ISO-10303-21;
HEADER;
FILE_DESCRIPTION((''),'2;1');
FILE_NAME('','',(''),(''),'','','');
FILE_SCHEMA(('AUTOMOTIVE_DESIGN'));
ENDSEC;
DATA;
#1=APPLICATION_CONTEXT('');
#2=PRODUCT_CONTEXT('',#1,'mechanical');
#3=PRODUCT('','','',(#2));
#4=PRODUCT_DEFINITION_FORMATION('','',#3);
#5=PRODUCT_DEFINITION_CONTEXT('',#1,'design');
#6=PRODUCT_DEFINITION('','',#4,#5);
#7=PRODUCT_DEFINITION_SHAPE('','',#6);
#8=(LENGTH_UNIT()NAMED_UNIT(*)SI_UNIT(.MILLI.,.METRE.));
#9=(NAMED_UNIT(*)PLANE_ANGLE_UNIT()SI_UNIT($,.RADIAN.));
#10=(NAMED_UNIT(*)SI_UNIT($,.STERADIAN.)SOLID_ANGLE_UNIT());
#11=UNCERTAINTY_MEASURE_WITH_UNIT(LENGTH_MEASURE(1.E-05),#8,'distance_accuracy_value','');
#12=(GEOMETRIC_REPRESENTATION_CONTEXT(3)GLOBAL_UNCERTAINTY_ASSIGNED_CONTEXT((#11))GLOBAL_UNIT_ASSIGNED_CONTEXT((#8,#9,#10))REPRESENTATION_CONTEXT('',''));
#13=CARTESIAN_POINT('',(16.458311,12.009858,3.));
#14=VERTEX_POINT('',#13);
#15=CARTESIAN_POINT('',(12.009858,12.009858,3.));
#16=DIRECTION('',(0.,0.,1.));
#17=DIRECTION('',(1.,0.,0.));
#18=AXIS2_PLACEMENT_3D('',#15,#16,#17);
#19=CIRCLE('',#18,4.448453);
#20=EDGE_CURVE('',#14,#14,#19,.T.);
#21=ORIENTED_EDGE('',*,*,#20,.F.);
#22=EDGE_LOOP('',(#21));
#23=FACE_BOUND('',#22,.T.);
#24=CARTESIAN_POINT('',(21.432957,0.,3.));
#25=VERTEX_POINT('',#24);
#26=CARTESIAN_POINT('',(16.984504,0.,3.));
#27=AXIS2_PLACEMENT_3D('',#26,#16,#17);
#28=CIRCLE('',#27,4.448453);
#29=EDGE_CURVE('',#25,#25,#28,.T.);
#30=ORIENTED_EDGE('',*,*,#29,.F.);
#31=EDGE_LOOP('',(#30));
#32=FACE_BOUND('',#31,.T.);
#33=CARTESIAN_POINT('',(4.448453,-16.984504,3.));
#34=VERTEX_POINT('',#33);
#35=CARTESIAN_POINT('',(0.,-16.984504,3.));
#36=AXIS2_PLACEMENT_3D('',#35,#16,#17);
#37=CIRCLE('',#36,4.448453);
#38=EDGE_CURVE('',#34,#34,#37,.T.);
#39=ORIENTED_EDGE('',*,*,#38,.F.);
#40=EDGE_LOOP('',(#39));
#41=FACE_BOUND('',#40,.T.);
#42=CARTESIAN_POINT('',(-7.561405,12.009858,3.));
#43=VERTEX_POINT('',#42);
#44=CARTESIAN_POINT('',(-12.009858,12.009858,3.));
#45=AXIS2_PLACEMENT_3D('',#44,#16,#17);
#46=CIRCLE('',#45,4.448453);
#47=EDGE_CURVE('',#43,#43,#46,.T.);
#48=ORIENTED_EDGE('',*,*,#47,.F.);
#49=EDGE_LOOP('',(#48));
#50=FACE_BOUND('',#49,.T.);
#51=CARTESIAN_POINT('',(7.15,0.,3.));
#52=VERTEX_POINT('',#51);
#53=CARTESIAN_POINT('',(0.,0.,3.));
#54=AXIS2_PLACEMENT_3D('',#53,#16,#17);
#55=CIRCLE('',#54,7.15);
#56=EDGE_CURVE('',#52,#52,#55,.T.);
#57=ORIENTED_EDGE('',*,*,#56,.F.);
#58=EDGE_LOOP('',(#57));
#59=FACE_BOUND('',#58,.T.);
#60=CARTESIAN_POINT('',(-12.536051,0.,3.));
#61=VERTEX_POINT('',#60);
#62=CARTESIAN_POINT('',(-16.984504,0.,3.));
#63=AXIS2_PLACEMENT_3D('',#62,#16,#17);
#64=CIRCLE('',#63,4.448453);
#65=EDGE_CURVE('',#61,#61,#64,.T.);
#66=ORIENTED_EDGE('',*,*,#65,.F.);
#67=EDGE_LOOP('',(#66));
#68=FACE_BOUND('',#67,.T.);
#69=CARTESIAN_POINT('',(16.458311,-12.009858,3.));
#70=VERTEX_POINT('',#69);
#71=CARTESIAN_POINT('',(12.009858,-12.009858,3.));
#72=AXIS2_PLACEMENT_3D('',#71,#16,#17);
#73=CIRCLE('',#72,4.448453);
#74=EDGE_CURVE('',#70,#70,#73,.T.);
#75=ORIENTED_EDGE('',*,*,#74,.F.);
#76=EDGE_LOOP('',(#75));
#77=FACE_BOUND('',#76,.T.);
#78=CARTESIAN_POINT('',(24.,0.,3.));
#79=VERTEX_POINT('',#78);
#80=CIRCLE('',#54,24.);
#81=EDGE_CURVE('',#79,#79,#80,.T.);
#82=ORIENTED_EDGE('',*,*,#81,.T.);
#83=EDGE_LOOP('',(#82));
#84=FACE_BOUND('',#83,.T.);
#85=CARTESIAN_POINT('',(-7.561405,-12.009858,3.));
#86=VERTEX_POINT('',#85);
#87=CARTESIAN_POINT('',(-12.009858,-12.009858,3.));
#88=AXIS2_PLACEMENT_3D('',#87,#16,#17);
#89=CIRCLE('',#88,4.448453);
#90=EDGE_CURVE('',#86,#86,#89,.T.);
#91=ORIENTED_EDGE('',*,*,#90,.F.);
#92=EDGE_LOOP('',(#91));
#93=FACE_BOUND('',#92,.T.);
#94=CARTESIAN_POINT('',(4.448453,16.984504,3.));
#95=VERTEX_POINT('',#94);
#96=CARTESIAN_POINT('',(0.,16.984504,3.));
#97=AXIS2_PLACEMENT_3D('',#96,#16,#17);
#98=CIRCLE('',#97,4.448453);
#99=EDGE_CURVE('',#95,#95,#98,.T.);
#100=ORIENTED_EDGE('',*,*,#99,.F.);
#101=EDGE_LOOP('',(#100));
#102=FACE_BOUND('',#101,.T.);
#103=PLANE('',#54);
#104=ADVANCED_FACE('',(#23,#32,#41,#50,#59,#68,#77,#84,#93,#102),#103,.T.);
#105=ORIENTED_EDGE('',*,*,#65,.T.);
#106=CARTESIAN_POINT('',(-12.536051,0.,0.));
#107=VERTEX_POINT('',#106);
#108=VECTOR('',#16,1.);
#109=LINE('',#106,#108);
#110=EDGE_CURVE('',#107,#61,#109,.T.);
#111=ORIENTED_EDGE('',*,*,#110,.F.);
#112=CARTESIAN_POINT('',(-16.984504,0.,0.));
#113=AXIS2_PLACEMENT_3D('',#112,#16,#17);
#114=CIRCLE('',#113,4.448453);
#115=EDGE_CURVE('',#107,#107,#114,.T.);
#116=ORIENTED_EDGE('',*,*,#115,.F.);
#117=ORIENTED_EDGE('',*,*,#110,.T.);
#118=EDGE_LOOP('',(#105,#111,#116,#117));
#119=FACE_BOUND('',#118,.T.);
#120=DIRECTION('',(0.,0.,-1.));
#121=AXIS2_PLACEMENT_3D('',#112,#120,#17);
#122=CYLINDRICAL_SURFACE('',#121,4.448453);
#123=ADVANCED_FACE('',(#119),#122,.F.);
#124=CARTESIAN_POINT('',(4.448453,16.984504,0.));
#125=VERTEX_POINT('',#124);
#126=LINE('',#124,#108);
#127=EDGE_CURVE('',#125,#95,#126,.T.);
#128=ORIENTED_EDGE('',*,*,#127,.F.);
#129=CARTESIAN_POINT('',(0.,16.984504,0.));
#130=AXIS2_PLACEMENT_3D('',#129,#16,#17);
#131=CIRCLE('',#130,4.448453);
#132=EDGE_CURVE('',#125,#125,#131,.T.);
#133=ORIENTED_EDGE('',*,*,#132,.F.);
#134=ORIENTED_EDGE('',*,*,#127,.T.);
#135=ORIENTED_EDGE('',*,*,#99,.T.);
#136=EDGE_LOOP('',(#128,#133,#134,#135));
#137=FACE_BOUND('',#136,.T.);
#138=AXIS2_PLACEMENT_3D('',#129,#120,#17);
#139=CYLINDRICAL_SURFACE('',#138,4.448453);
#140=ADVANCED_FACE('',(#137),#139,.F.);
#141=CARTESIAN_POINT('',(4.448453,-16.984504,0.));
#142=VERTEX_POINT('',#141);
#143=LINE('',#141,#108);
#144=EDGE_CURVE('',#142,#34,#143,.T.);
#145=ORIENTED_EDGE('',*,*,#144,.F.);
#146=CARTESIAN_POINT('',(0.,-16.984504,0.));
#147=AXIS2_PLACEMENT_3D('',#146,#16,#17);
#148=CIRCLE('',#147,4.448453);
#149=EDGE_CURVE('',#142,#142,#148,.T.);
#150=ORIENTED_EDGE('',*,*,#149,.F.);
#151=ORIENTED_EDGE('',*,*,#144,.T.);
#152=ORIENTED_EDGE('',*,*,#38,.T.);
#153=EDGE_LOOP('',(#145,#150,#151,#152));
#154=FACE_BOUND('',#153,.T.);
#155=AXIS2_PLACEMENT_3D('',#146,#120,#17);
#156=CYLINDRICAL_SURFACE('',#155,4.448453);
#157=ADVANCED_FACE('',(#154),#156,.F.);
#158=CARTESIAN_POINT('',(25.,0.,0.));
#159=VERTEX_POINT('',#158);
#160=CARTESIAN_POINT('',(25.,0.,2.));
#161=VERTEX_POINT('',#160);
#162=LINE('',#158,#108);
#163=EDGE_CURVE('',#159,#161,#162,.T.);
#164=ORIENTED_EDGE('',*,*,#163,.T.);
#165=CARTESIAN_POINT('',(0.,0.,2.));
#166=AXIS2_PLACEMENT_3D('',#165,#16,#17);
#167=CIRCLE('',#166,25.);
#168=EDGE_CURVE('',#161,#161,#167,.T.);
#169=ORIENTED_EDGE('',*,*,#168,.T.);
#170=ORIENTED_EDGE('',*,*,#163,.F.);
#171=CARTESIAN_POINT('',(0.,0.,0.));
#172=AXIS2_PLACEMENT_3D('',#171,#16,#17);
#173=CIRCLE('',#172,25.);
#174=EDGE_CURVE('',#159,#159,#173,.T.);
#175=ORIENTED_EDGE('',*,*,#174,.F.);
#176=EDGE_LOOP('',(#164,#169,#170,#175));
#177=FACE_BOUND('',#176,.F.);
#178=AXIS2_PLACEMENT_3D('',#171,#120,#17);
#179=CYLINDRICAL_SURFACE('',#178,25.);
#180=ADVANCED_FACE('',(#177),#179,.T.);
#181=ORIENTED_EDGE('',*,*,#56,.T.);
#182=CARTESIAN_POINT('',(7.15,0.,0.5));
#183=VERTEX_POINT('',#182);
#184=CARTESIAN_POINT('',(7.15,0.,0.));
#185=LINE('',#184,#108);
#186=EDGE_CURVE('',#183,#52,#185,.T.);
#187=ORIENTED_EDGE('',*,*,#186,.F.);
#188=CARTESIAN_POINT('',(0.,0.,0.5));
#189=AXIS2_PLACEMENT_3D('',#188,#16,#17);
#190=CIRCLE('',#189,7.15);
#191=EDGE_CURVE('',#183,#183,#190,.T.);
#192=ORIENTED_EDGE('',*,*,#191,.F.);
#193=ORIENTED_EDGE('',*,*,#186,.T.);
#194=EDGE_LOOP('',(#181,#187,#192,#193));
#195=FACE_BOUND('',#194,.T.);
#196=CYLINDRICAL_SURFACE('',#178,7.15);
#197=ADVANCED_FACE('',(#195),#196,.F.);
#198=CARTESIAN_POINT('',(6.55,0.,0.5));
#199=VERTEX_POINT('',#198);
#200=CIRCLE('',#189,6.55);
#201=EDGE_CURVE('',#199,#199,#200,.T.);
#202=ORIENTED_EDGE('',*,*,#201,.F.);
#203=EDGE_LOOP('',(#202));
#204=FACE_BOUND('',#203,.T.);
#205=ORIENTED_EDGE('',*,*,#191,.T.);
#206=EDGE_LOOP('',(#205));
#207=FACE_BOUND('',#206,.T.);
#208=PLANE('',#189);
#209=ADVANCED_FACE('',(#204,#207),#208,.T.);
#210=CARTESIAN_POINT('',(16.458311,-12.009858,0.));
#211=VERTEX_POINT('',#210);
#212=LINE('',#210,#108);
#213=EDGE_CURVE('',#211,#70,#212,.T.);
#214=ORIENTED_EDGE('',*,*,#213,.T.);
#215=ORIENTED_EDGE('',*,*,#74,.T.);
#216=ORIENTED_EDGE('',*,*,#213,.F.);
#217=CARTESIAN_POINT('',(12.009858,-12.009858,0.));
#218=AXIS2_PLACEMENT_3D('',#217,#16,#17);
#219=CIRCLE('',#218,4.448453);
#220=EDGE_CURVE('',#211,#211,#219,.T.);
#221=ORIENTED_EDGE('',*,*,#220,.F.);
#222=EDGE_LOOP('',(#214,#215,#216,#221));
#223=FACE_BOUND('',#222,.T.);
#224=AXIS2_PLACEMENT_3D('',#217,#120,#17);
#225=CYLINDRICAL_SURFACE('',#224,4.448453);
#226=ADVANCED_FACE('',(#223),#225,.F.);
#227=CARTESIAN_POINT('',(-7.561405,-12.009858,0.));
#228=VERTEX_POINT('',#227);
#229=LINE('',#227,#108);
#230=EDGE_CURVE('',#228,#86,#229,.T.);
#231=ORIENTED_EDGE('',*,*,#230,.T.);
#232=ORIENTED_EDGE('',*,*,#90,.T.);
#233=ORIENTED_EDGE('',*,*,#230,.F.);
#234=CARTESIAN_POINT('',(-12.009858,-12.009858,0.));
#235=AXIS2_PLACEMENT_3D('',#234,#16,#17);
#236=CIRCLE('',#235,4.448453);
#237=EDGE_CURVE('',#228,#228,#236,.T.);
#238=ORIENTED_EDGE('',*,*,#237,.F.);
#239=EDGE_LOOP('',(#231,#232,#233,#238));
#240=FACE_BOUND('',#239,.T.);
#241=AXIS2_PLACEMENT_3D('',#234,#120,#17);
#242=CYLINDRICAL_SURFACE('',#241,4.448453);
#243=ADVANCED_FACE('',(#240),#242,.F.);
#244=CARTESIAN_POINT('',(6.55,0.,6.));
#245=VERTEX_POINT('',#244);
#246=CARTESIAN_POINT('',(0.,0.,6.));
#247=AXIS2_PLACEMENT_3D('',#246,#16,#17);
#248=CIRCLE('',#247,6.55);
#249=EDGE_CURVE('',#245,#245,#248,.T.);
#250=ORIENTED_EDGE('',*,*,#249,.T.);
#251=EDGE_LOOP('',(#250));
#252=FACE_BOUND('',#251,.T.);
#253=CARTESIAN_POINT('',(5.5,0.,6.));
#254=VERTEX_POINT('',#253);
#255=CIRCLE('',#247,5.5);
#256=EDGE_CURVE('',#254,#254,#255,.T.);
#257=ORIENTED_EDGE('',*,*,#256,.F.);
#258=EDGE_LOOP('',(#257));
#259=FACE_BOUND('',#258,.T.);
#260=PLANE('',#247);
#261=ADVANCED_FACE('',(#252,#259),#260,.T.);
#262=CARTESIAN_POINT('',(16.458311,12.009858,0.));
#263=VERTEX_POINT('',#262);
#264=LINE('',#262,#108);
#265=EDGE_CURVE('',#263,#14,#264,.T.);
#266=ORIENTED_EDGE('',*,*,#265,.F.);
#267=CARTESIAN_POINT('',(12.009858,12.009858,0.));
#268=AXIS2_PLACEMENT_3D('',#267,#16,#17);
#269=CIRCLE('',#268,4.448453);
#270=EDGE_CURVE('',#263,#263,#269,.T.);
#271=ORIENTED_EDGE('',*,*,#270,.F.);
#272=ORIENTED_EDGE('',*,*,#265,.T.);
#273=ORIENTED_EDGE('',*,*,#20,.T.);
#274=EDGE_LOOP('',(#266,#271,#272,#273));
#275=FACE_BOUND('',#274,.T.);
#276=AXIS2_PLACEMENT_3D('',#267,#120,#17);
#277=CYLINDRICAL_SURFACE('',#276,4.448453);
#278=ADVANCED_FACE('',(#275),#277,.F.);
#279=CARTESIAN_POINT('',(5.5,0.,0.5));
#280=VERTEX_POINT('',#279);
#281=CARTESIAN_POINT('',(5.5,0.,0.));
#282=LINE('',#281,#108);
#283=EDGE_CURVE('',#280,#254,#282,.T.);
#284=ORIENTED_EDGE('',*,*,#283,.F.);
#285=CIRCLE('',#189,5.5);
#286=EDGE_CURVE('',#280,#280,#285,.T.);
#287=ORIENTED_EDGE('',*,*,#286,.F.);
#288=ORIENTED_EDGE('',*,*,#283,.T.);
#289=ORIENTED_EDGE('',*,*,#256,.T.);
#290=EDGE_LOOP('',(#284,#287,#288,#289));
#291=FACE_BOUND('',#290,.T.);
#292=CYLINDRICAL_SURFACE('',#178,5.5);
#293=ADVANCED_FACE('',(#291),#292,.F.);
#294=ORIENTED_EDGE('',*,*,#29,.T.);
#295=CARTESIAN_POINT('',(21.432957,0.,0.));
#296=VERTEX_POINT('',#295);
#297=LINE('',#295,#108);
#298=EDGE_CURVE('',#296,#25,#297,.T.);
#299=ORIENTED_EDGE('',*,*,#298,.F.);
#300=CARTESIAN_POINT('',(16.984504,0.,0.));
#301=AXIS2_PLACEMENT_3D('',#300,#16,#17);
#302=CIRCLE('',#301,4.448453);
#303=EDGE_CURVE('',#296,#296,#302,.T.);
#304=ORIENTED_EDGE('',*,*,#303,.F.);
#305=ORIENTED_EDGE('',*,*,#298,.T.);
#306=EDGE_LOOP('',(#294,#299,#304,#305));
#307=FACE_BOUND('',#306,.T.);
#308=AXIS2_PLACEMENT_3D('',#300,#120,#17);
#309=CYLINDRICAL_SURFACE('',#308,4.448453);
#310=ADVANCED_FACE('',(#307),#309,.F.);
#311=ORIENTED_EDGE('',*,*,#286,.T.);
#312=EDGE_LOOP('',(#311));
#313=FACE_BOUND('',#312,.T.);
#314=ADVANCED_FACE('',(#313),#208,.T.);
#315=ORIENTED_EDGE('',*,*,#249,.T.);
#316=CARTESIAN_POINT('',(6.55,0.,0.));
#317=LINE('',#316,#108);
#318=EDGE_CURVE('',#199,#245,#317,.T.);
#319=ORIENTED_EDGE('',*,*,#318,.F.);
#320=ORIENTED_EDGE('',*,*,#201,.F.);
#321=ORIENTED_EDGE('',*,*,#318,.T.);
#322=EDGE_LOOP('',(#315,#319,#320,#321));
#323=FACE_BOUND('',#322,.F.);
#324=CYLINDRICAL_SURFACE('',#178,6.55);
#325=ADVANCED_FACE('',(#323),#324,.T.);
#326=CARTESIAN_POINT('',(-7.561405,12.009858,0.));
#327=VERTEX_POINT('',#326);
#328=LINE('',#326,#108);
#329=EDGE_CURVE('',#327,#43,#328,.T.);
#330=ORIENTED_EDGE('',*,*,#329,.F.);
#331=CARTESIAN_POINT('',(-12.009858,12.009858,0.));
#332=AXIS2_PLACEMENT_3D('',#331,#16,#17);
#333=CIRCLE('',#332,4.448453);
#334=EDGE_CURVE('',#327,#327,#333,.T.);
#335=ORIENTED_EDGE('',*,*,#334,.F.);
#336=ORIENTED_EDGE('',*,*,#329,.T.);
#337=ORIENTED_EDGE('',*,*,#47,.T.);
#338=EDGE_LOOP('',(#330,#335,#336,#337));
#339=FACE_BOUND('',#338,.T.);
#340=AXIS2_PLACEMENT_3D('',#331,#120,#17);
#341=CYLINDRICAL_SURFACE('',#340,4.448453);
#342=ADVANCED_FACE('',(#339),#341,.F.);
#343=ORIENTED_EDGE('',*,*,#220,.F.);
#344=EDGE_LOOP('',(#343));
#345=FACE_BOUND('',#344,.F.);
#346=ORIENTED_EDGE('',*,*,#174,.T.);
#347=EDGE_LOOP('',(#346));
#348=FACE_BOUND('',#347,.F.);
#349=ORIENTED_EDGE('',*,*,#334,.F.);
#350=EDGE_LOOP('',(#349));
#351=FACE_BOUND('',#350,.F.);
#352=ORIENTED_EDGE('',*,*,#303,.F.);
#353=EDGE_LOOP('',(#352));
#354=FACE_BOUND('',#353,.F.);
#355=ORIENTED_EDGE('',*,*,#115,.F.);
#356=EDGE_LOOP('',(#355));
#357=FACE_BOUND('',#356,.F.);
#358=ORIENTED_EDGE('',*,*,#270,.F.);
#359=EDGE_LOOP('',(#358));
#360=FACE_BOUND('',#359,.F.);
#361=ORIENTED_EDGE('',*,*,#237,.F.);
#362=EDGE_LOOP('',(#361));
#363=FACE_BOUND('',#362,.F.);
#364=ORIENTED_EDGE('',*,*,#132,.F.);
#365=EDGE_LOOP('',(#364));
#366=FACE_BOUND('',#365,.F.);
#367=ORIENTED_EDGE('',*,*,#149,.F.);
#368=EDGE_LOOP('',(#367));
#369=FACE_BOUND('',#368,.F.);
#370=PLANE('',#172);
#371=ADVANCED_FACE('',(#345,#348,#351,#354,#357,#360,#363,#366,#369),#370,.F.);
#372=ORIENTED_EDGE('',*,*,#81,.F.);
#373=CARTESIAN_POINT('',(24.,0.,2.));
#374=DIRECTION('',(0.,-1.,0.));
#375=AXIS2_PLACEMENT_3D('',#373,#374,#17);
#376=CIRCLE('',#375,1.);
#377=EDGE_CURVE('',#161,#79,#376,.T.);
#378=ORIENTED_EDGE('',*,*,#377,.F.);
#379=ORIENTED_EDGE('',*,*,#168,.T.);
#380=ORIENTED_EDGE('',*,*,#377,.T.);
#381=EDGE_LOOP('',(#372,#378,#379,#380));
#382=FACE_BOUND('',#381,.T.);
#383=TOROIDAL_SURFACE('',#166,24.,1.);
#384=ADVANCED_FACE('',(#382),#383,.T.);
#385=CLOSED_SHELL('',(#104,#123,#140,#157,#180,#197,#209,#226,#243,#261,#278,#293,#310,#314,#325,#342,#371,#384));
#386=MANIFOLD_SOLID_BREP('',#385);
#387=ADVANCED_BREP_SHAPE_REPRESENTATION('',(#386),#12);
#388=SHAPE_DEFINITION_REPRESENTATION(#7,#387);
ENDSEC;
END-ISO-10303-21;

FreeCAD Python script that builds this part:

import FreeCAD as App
import Part
import Sketcher
Q = App.Units.Quantity


def edges_at(feature, points):
    """Names of the edges that pass closest to the given points."""
    edges = feature.Shape.Edges
    near = lambda p: min(range(len(edges)), key=lambda i: edges[i].distToShape(Part.Vertex(*p))[0])
    return sorted({f"Edge{near(p) + 1}" for p in points})

doc = App.newDocument("Part")
params = doc.addObject("Spreadsheet::Sheet", "Params")
for row, (alias, value) in enumerate([
    ("sketch1_diameter", "11 mm"),
    ("sketch1_diameter2", "13.1 mm"),
    ("pad1_length", "6 mm"),
    ("sketch2_diameter", "11 mm"),
    ("sketch2_diameter2", "14.3 mm"),
    ("sketch2_diameter3", "13.1 mm"),
    ("pad2_length", "0.5 mm"),
    ("sketch3_diameter", "50 mm"),
    ("sketch3_diameter2", "14.3 mm"),
    ("pad3_length", "3 mm"),
    ("fillet_radius", "1 mm"),
], start=1):
    params.set(f"A{row}", alias)
    params.set(f"B{row}", "=" + value)
    params.setAlias(f"B{row}", alias)

body = doc.addObject("PartDesign::Body", "Body")

# Sketch on XY plane
sketch1 = body.newObject("Sketcher::SketchObject", "Sketch")
sketch1.AttachmentSupport = (doc.getObject("XY_Plane"), [""])
sketch1.MapMode = "FlatFace"
sketch1.addGeometry(Part.Circle(App.Vector(0, 0, 0), App.Vector(0, 0, 1), 6.55), False)
sketch1.addGeometry(Part.Circle(App.Vector(0, 0, 0), App.Vector(0, 0, 1), 5.5), False)
sketch1.addConstraint(Sketcher.Constraint("Coincident", 0, 3, -1, 1))
sketch1.addConstraint(Sketcher.Constraint("Coincident", 1, 3, -1, 1))
sketch1.addConstraint(Sketcher.Constraint("Diameter", 1, Q("11 mm")))
sketch1.addConstraint(Sketcher.Constraint("Diameter", 0, Q("13.1 mm")))
sketch1.setExpression("Constraints[2]", "Params.sketch1_diameter")
sketch1.setExpression("Constraints[3]", "Params.sketch1_diameter2")
pad1 = body.newObject("PartDesign::Pad", "Pad")
pad1.Profile = sketch1
pad1.setExpression("Length", "Params.pad1_length")

# Sketch on XY plane
sketch2 = body.newObject("Sketcher::SketchObject", "Sketch001")
sketch2.AttachmentSupport = (doc.getObject("XY_Plane"), [""])
sketch2.MapMode = "FlatFace"
sketch2.addGeometry(Part.Circle(App.Vector(0, 0, 0), App.Vector(0, 0, 1), 7.15), False)
sketch2.addGeometry(Part.Circle(App.Vector(0, 0, 0), App.Vector(0, 0, 1), 6.55), False)
sketch2.addGeometry(Part.Circle(App.Vector(0, 0, 0), App.Vector(0, 0, 1), 5.5), False)
sketch2.addConstraint(Sketcher.Constraint("Coincident", 0, 3, -1, 1))
sketch2.addConstraint(Sketcher.Constraint("Coincident", 1, 3, -1, 1))
sketch2.addConstraint(Sketcher.Constraint("Coincident", 2, 3, -1, 1))
sketch2.addConstraint(Sketcher.Constraint("Diameter", 2, Q("11 mm")))
sketch2.addConstraint(Sketcher.Constraint("Diameter", 0, Q("14.3 mm")))
sketch2.addConstraint(Sketcher.Constraint("Diameter", 1, Q("13.1 mm")))
sketch2.setExpression("Constraints[3]", "Params.sketch2_diameter")
sketch2.setExpression("Constraints[4]", "Params.sketch2_diameter2")
sketch2.setExpression("Constraints[5]", "Params.sketch2_diameter3")
pad2 = body.newObject("PartDesign::Pad", "Pad001")
pad2.Profile = sketch2
pad2.setExpression("Length", "Params.pad2_length")

# Sketch on XY plane
sketch3 = body.newObject("Sketcher::SketchObject", "Sketch002")
sketch3.AttachmentSupport = (doc.getObject("XY_Plane"), [""])
sketch3.MapMode = "FlatFace"
sketch3.addGeometry(Part.Circle(App.Vector(0, 0, 0), App.Vector(0, 0, 1), 25), False)
sketch3.addGeometry(Part.Circle(App.Vector(-12.009858, -12.009858, 0), App.Vector(0, 0, 1), 4.448453), False)
sketch3.addGeometry(Part.Circle(App.Vector(0, -16.984504, 0), App.Vector(0, 0, 1), 4.448453), False)
sketch3.addGeometry(Part.Circle(App.Vector(12.009858, -12.009858, 0), App.Vector(0, 0, 1), 4.448453), False)
sketch3.addGeometry(Part.Circle(App.Vector(-16.984504, 0, 0), App.Vector(0, 0, 1), 4.448453), False)
sketch3.addGeometry(Part.Circle(App.Vector(-12.009858, 12.009858, 0), App.Vector(0, 0, 1), 4.448453), False)
sketch3.addGeometry(Part.Circle(App.Vector(0, 0, 0), App.Vector(0, 0, 1), 7.15), False)
sketch3.addGeometry(Part.Circle(App.Vector(16.984504, 0, 0), App.Vector(0, 0, 1), 4.448453), False)
sketch3.addGeometry(Part.Circle(App.Vector(0, 16.984504, 0), App.Vector(0, 0, 1), 4.448453), False)
sketch3.addGeometry(Part.Circle(App.Vector(12.009858, 12.009858, 0), App.Vector(0, 0, 1), 4.448453), False)
sketch3.addConstraint(Sketcher.Constraint("Coincident", 0, 3, -1, 1))
sketch3.addConstraint(Sketcher.Constraint("Coincident", 6, 3, -1, 1))
sketch3.addConstraint(Sketcher.Constraint("Equal", 1, 2))
sketch3.addConstraint(Sketcher.Constraint("Equal", 2, 3))
sketch3.addConstraint(Sketcher.Constraint("Equal", 3, 4))
sketch3.addConstraint(Sketcher.Constraint("Equal", 4, 5))
sketch3.addConstraint(Sketcher.Constraint("Equal", 5, 7))
sketch3.addConstraint(Sketcher.Constraint("Equal", 7, 8))
sketch3.addConstraint(Sketcher.Constraint("Equal", 8, 9))
sketch3.addConstraint(Sketcher.Constraint("Symmetric", 3, 3, 5, 3, -1, 1))
sketch3.addConstraint(Sketcher.Constraint("Symmetric", 4, 3, 7, 3, -1, 1))
sketch3.addConstraint(Sketcher.Constraint("Symmetric", 2, 3, 8, 3, -1, 1))
sketch3.addConstraint(Sketcher.Constraint("Symmetric", 1, 3, 9, 3, -1, 1))
sketch3.addConstraint(Sketcher.Constraint("Symmetric", 1, 3, 3, 3, -2))
sketch3.addConstraint(Sketcher.Constraint("PointOnObject", 2, 3, -2))
sketch3.addConstraint(Sketcher.Constraint("PointOnObject", 4, 3, -1))
sketch3.addConstraint(Sketcher.Constraint("Diameter", 0, Q("50 mm")))
sketch3.addConstraint(Sketcher.Constraint("Diameter", 6, Q("14.3 mm")))
sketch3.addConstraint(Sketcher.Constraint("Diameter", 1, Q("8.896906 mm")))
sketch3.addConstraint(Sketcher.Constraint("DistanceX", 1, 3, -1, 1, Q("12.009858 mm")))
sketch3.addConstraint(Sketcher.Constraint("DistanceY", 1, 3, -1, 1, Q("12.009858 mm")))
sketch3.addConstraint(Sketcher.Constraint("DistanceY", 2, 3, -1, 1, Q("16.984504 mm")))
sketch3.addConstraint(Sketcher.Constraint("DistanceX", 4, 3, -1, 1, Q("16.984504 mm")))
sketch3.setExpression("Constraints[16]", "Params.sketch3_diameter")
sketch3.setExpression("Constraints[17]", "Params.sketch3_diameter2")
pad3 = body.newObject("PartDesign::Pad", "Pad002")
pad3.Profile = sketch3
pad3.setExpression("Length", "Params.pad3_length")
doc.recompute()

fillet = body.newObject("PartDesign::Fillet", "Fillet")
fillet.Base = (pad3, edges_at(pad3, [(-25, 0, 3)]))
fillet.setExpression("Radius", "Params.fillet_radius")

doc.recompute()
